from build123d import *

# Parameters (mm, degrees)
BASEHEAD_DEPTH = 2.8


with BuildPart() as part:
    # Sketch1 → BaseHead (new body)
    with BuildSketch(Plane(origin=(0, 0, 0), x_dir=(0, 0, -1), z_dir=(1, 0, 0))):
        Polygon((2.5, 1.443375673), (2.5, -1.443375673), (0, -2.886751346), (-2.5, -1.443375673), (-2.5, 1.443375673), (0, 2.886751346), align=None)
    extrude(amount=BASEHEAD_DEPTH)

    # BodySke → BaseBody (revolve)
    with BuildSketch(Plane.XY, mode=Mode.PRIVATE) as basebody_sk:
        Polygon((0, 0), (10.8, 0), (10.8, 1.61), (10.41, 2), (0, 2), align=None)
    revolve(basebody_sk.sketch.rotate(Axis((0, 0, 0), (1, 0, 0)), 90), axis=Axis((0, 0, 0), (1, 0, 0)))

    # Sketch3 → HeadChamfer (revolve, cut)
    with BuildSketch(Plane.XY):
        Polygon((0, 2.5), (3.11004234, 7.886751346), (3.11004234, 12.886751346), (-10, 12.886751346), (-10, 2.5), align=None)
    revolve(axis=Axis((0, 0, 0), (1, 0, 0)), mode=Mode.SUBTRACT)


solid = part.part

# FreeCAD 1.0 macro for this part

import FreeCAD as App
import Part
import Sketcher
from FreeCAD import Vector
Q = App.Units.Quantity

doc = App.newDocument("Part")
body = doc.addObject("PartDesign::Body", "Body")

sketch1 = body.newObject("Sketcher::SketchObject", "Sketch")
sketch1.AttachmentSupport = (doc.getObject("YZ_Plane"), [""])
sketch1.MapMode = "FlatFace"
sketch1.addGeometry([
    Part.LineSegment(Vector(-1.443376, -2.5, 0), Vector(1.443376, -2.5, 0)),
    Part.LineSegment(Vector(1.443376, -2.5, 0), Vector(2.886751, 0, 0)),
    Part.LineSegment(Vector(2.886751, 0, 0), Vector(1.443376, 2.5, 0)),
    Part.LineSegment(Vector(1.443376, 2.5, 0), Vector(-1.443376, 2.5, 0)),
    Part.LineSegment(Vector(-1.443376, 2.5, 0), Vector(-2.886751, 0, 0)),
    Part.LineSegment(Vector(-2.886751, 0, 0), Vector(-1.443376, -2.5, 0)),
], False)
sketch1.addConstraint([
    Sketcher.Constraint("Coincident", 0, 2, 1, 1),
    Sketcher.Constraint("Coincident", 1, 2, 2, 1),
    Sketcher.Constraint("Coincident", 2, 2, 3, 1),
    Sketcher.Constraint("Coincident", 3, 2, 4, 1),
    Sketcher.Constraint("Coincident", 4, 2, 5, 1),
    Sketcher.Constraint("Coincident", 5, 2, 0, 1),
    Sketcher.Constraint("Horizontal", 0),
    Sketcher.Constraint("Horizontal", 3),
    Sketcher.Constraint("Symmetric", 0, 2, 3, 2, -1, 1),
    Sketcher.Constraint("Symmetric", 1, 2, 4, 2, -1, 1),
    Sketcher.Constraint("PointOnObject", 1, 2, -1),
    Sketcher.Constraint("Parallel", 2, 5),
    Sketcher.Constraint("Vertical", 0, 2, 2, 2),
    Sketcher.Constraint("Angle", 1, Q("60 deg")),
    Sketcher.Constraint("DistanceY", 0, 2, 2, 2, Q("5 mm")),
    Sketcher.Constraint("DistanceX", 0, 1, 0, 2, Q("2.886751 mm")),
])
pad1 = body.newObject("PartDesign::Pad", "Pad")
pad1.Profile = sketch1
pad1.Length = 2.8

sketch2 = body.newObject("Sketcher::SketchObject", "Sketch001")
sketch2.AttachmentSupport = (doc.getObject("XY_Plane"), [""])
sketch2.MapMode = "FlatFace"
sketch2.addGeometry([
    Part.LineSegment(Vector(0, 0, 0), Vector(10.8, 0, 0)),
    Part.LineSegment(Vector(10.8, 0, 0), Vector(10.8, 1.61, 0)),
    Part.LineSegment(Vector(10.8, 1.61, 0), Vector(10.41, 2, 0)),
    Part.LineSegment(Vector(10.41, 2, 0), Vector(0, 2, 0)),
    Part.LineSegment(Vector(0, 2, 0), Vector(0, 0, 0)),
], False)
sketch2.addConstraint([
    Sketcher.Constraint("Coincident", 0, 2, 1, 1),
    Sketcher.Constraint("Coincident", 1, 2, 2, 1),
    Sketcher.Constraint("Coincident", 2, 2, 3, 1),
    Sketcher.Constraint("Coincident", 3, 2, 4, 1),
    Sketcher.Constraint("Coincident", 4, 2, 0, 1),
    Sketcher.Constraint("Horizontal", 0),
    Sketcher.Constraint("Vertical", 1),
    Sketcher.Constraint("Horizontal", 3),
    Sketcher.Constraint("Vertical", 4),
    Sketcher.Constraint("Coincident", 4, 2, -1, 1),
    Sketcher.Constraint("DistanceY", 4, 2, 4, 1, Q("2 mm")),
    Sketcher.Constraint("Angle", 2, Q("135 deg")),
    Sketcher.Constraint("DistanceX", 0, 1, 0, 2, Q("10.8 mm")),
    Sketcher.Constraint("DistanceX", 3, 2, 3, 1, Q("10.41 mm")),
])
revolution = body.newObject("PartDesign::Revolution", "Revolution")
revolution.Profile = sketch2
revolution.ReferenceAxis = (sketch2, ["H_Axis"])
revolution.Angle = 360

sketch3 = body.newObject("Sketcher::SketchObject", "Sketch002")
sketch3.AttachmentSupport = (doc.getObject("XY_Plane"), [""])
sketch3.MapMode = "FlatFace"
sketch3.addGeometry([
    Part.LineSegment(Vector(0, 2.5, 0), Vector(3.110042, 7.886751, 0)),
    Part.LineSegment(Vector(3.110042, 7.886751, 0), Vector(3.110042, 12.886751, 0)),
    Part.LineSegment(Vector(3.110042, 12.886751, 0), Vector(-10, 12.886751, 0)),
    Part.LineSegment(Vector(-10, 12.886751, 0), Vector(-10, 2.5, 0)),
    Part.LineSegment(Vector(-10, 2.5, 0), Vector(0, 2.5, 0)),
], False)
sketch3.addConstraint([
    Sketcher.Constraint("Coincident", 0, 2, 1, 1),
    Sketcher.Constraint("Coincident", 1, 2, 2, 1),
    Sketcher.Constraint("Coincident", 2, 2, 3, 1),
    Sketcher.Constraint("Coincident", 3, 2, 4, 1),
    Sketcher.Constraint("Coincident", 4, 2, 0, 1),
    Sketcher.Constraint("Vertical", 1),
    Sketcher.Constraint("Horizontal", 2),
    Sketcher.Constraint("Vertical", 3),
    Sketcher.Constraint("Horizontal", 4),
    Sketcher.Constraint("PointOnObject", 4, 2, -2),
    Sketcher.Constraint("DistanceX", 4, 1, 4, 2, Q("10 mm")),
    Sketcher.Constraint("DistanceY", 1, 1, 1, 2, Q("5 mm")),
    Sketcher.Constraint("Angle", 0, Q("60 deg")),
    Sketcher.Constraint("DistanceY", -1, 1, 3, 2, Q("2.5 mm")),
    Sketcher.Constraint("DistanceY", 3, 2, 3, 1, Q("10.386751 mm")),
])
groove = body.newObject("PartDesign::Groove", "Groove")
groove.Profile = sketch3
groove.ReferenceAxis = (sketch3, ["H_Axis"])
groove.Angle = 360

doc.recompute()
